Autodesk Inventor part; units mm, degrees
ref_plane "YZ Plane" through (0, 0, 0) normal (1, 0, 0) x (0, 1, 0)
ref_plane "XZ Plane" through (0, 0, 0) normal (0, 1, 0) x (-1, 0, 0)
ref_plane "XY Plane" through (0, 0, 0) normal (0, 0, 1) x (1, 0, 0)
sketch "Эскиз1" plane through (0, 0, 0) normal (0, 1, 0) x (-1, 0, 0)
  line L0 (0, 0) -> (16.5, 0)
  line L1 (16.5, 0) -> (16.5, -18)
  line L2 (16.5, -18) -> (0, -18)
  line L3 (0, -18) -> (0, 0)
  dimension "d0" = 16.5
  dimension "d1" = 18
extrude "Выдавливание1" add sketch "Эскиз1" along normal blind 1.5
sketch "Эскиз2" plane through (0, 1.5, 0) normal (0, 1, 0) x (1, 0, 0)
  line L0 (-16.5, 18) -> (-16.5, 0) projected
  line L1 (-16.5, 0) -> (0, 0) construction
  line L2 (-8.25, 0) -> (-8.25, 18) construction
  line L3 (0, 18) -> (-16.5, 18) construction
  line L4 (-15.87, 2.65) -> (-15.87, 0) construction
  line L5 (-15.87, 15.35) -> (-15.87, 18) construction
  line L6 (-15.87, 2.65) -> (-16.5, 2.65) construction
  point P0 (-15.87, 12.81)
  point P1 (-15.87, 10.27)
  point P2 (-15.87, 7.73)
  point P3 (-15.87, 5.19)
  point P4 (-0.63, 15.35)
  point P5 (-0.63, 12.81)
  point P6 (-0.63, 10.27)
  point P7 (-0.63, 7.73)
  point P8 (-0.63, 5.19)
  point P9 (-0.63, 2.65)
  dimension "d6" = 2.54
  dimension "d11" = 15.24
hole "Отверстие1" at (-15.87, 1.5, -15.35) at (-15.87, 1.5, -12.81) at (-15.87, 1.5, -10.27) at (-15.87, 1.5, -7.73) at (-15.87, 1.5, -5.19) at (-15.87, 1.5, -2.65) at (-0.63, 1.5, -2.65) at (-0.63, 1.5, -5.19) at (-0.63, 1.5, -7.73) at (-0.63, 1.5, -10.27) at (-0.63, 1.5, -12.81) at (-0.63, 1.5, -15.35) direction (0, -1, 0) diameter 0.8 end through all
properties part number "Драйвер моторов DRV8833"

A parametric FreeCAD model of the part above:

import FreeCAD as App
import Part
import Sketcher
Q = App.Units.Quantity


def add_polygon(sketch, points):
    """Adds a closed chain of lines whose ends are joined by coincident constraints."""
    first, n = sketch.GeometryCount, len(points)
    for a, b in zip(points, points[1:] + points[:1]):
        sketch.addGeometry(Part.LineSegment(App.Vector(*a, 0), App.Vector(*b, 0)), False)
    for i in range(n):
        sketch.addConstraint(Sketcher.Constraint("Coincident", first + i, 2, first + (i + 1) % n, 1))

doc = App.newDocument("Part")
body = doc.addObject("PartDesign::Body", "Body")

# Sketch on XZ plane
sketch1 = body.newObject("Sketcher::SketchObject", "Sketch")
sketch1.AttachmentSupport = (doc.getObject("XZ_Plane"), [""])
sketch1.MapMode = "FlatFace"
add_polygon(sketch1, [(-16.5, 0), (0, 0), (0, -18), (-16.5, -18)])  # lines 0-3
sketch1.addConstraint(Sketcher.Constraint("Horizontal", 0))
sketch1.addConstraint(Sketcher.Constraint("Vertical", 1))
sketch1.addConstraint(Sketcher.Constraint("Horizontal", 2))
sketch1.addConstraint(Sketcher.Constraint("Vertical", 3))
sketch1.addConstraint(Sketcher.Constraint("Coincident", 0, 2, -1, 1))
sketch1.addConstraint(Sketcher.Constraint("DistanceY", 1, 2, 1, 1, Q("18 mm")))
sketch1.addConstraint(Sketcher.Constraint("DistanceX", 0, 1, 0, 2, Q("16.5 mm")))
pad1 = body.newObject("PartDesign::Pad", "Pad")
pad1.Profile = sketch1
pad1.Length = 1.5
pad1.Reversed = True

# Sketch on XZ plane
sketch2 = body.newObject("Sketcher::SketchObject", "Sketch001")
sketch2.AttachmentSupport = (doc.getObject("XZ_Plane"), [""])
sketch2.MapMode = "FlatFace"
sketch2.AttachmentOffset = App.Placement(App.Vector(0, 0, -1.5), App.Rotation())
sketch2.addGeometry(Part.Circle(App.Vector(-15.87, -15.35, 0), App.Vector(0, 0, 1), 0.4), False)
sketch2.addGeometry(Part.Circle(App.Vector(-15.87, -12.81, 0), App.Vector(0, 0, 1), 0.4), False)
sketch2.addGeometry(Part.Circle(App.Vector(-15.87, -10.27, 0), App.Vector(0, 0, 1), 0.4), False)
sketch2.addGeometry(Part.Circle(App.Vector(-15.87, -7.73, 0), App.Vector(0, 0, 1), 0.4), False)
sketch2.addGeometry(Part.Circle(App.Vector(-15.87, -5.19, 0), App.Vector(0, 0, 1), 0.4), False)
sketch2.addGeometry(Part.Circle(App.Vector(-15.87, -2.65, 0), App.Vector(0, 0, 1), 0.4), False)
sketch2.addGeometry(Part.Circle(App.Vector(-0.63, -2.65, 0), App.Vector(0, 0, 1), 0.4), False)
sketch2.addGeometry(Part.Circle(App.Vector(-0.63, -5.19, 0), App.Vector(0, 0, 1), 0.4), False)
sketch2.addGeometry(Part.Circle(App.Vector(-0.63, -7.73, 0), App.Vector(0, 0, 1), 0.4), False)
sketch2.addGeometry(Part.Circle(App.Vector(-0.63, -10.27, 0), App.Vector(0, 0, 1), 0.4), False)
sketch2.addGeometry(Part.Circle(App.Vector(-0.63, -12.81, 0), App.Vector(0, 0, 1), 0.4), False)
sketch2.addGeometry(Part.Circle(App.Vector(-0.63, -15.35, 0), App.Vector(0, 0, 1), 0.4), False)
sketch2.addConstraint(Sketcher.Constraint("Equal", 0, 1))
sketch2.addConstraint(Sketcher.Constraint("Equal", 1, 2))
sketch2.addConstraint(Sketcher.Constraint("Equal", 2, 3))
sketch2.addConstraint(Sketcher.Constraint("Equal", 3, 4))
sketch2.addConstraint(Sketcher.Constraint("Equal", 4, 5))
sketch2.addConstraint(Sketcher.Constraint("Equal", 5, 6))
sketch2.addConstraint(Sketcher.Constraint("Equal", 6, 7))
sketch2.addConstraint(Sketcher.Constraint("Equal", 7, 8))
sketch2.addConstraint(Sketcher.Constraint("Equal", 8, 9))
sketch2.addConstraint(Sketcher.Constraint("Equal", 9, 10))
sketch2.addConstraint(Sketcher.Constraint("Equal", 10, 11))
sketch2.addConstraint(Sketcher.Constraint("Horizontal", 5, 3, 6, 3))
sketch2.addConstraint(Sketcher.Constraint("Horizontal", 4, 3, 7, 3))
sketch2.addConstraint(Sketcher.Constraint("Horizontal", 3, 3, 8, 3))
sketch2.addConstraint(Sketcher.Constraint("Horizontal", 2, 3, 9, 3))
sketch2.addConstraint(Sketcher.Constraint("Horizontal", 1, 3, 10, 3))
sketch2.addConstraint(Sketcher.Constraint("Horizontal", 0, 3, 11, 3))
sketch2.addConstraint(Sketcher.Constraint("Vertical", 0, 3, 1, 3))
sketch2.addConstraint(Sketcher.Constraint("Vertical", 1, 3, 2, 3))
sketch2.addConstraint(Sketcher.Constraint("Vertical", 2, 3, 3, 3))
sketch2.addConstraint(Sketcher.Constraint("Vertical", 3, 3, 4, 3))
sketch2.addConstraint(Sketcher.Constraint("Vertical", 4, 3, 5, 3))
sketch2.addConstraint(Sketcher.Constraint("Vertical", 6, 3, 7, 3))
sketch2.addConstraint(Sketcher.Constraint("Vertical", 7, 3, 8, 3))
sketch2.addConstraint(Sketcher.Constraint("Vertical", 8, 3, 9, 3))
sketch2.addConstraint(Sketcher.Constraint("Vertical", 9, 3, 10, 3))
sketch2.addConstraint(Sketcher.Constraint("Vertical", 10, 3, 11, 3))
sketch2.addConstraint(Sketcher.Constraint("Diameter", 0, Q("0.8 mm")))
sketch2.addConstraint(Sketcher.Constraint("DistanceY", 0, 3, 5, 3, Q("12.7 mm")))
sketch2.addConstraint(Sketcher.Constraint("DistanceX", 0, 3, -1, 1, Q("15.87 mm")))
sketch2.addConstraint(Sketcher.Constraint("DistanceY", 0, 3, -1, 1, Q("15.35 mm")))
sketch2.addConstraint(Sketcher.Constraint("DistanceY", 1, 3, -1, 1, Q("12.81 mm")))
sketch2.addConstraint(Sketcher.Constraint("DistanceY", 2, 3, -1, 1, Q("10.27 mm")))
sketch2.addConstraint(Sketcher.Constraint("DistanceY", 3, 3, -1, 1, Q("7.73 mm")))
sketch2.addConstraint(Sketcher.Constraint("DistanceY", 4, 3, -1, 1, Q("5.19 mm")))
sketch2.addConstraint(Sketcher.Constraint("DistanceX", 6, 3, -1, 1, Q("0.63 mm")))
doc.recompute()
hole = body.newObject("PartDesign::Hole", "Hole")
hole.Profile = sketch2
hole.ThreadType = "None"
hole.Diameter = 0.8
hole.DepthType = "ThroughAll"
hole.Reversed = True

doc.recompute()
